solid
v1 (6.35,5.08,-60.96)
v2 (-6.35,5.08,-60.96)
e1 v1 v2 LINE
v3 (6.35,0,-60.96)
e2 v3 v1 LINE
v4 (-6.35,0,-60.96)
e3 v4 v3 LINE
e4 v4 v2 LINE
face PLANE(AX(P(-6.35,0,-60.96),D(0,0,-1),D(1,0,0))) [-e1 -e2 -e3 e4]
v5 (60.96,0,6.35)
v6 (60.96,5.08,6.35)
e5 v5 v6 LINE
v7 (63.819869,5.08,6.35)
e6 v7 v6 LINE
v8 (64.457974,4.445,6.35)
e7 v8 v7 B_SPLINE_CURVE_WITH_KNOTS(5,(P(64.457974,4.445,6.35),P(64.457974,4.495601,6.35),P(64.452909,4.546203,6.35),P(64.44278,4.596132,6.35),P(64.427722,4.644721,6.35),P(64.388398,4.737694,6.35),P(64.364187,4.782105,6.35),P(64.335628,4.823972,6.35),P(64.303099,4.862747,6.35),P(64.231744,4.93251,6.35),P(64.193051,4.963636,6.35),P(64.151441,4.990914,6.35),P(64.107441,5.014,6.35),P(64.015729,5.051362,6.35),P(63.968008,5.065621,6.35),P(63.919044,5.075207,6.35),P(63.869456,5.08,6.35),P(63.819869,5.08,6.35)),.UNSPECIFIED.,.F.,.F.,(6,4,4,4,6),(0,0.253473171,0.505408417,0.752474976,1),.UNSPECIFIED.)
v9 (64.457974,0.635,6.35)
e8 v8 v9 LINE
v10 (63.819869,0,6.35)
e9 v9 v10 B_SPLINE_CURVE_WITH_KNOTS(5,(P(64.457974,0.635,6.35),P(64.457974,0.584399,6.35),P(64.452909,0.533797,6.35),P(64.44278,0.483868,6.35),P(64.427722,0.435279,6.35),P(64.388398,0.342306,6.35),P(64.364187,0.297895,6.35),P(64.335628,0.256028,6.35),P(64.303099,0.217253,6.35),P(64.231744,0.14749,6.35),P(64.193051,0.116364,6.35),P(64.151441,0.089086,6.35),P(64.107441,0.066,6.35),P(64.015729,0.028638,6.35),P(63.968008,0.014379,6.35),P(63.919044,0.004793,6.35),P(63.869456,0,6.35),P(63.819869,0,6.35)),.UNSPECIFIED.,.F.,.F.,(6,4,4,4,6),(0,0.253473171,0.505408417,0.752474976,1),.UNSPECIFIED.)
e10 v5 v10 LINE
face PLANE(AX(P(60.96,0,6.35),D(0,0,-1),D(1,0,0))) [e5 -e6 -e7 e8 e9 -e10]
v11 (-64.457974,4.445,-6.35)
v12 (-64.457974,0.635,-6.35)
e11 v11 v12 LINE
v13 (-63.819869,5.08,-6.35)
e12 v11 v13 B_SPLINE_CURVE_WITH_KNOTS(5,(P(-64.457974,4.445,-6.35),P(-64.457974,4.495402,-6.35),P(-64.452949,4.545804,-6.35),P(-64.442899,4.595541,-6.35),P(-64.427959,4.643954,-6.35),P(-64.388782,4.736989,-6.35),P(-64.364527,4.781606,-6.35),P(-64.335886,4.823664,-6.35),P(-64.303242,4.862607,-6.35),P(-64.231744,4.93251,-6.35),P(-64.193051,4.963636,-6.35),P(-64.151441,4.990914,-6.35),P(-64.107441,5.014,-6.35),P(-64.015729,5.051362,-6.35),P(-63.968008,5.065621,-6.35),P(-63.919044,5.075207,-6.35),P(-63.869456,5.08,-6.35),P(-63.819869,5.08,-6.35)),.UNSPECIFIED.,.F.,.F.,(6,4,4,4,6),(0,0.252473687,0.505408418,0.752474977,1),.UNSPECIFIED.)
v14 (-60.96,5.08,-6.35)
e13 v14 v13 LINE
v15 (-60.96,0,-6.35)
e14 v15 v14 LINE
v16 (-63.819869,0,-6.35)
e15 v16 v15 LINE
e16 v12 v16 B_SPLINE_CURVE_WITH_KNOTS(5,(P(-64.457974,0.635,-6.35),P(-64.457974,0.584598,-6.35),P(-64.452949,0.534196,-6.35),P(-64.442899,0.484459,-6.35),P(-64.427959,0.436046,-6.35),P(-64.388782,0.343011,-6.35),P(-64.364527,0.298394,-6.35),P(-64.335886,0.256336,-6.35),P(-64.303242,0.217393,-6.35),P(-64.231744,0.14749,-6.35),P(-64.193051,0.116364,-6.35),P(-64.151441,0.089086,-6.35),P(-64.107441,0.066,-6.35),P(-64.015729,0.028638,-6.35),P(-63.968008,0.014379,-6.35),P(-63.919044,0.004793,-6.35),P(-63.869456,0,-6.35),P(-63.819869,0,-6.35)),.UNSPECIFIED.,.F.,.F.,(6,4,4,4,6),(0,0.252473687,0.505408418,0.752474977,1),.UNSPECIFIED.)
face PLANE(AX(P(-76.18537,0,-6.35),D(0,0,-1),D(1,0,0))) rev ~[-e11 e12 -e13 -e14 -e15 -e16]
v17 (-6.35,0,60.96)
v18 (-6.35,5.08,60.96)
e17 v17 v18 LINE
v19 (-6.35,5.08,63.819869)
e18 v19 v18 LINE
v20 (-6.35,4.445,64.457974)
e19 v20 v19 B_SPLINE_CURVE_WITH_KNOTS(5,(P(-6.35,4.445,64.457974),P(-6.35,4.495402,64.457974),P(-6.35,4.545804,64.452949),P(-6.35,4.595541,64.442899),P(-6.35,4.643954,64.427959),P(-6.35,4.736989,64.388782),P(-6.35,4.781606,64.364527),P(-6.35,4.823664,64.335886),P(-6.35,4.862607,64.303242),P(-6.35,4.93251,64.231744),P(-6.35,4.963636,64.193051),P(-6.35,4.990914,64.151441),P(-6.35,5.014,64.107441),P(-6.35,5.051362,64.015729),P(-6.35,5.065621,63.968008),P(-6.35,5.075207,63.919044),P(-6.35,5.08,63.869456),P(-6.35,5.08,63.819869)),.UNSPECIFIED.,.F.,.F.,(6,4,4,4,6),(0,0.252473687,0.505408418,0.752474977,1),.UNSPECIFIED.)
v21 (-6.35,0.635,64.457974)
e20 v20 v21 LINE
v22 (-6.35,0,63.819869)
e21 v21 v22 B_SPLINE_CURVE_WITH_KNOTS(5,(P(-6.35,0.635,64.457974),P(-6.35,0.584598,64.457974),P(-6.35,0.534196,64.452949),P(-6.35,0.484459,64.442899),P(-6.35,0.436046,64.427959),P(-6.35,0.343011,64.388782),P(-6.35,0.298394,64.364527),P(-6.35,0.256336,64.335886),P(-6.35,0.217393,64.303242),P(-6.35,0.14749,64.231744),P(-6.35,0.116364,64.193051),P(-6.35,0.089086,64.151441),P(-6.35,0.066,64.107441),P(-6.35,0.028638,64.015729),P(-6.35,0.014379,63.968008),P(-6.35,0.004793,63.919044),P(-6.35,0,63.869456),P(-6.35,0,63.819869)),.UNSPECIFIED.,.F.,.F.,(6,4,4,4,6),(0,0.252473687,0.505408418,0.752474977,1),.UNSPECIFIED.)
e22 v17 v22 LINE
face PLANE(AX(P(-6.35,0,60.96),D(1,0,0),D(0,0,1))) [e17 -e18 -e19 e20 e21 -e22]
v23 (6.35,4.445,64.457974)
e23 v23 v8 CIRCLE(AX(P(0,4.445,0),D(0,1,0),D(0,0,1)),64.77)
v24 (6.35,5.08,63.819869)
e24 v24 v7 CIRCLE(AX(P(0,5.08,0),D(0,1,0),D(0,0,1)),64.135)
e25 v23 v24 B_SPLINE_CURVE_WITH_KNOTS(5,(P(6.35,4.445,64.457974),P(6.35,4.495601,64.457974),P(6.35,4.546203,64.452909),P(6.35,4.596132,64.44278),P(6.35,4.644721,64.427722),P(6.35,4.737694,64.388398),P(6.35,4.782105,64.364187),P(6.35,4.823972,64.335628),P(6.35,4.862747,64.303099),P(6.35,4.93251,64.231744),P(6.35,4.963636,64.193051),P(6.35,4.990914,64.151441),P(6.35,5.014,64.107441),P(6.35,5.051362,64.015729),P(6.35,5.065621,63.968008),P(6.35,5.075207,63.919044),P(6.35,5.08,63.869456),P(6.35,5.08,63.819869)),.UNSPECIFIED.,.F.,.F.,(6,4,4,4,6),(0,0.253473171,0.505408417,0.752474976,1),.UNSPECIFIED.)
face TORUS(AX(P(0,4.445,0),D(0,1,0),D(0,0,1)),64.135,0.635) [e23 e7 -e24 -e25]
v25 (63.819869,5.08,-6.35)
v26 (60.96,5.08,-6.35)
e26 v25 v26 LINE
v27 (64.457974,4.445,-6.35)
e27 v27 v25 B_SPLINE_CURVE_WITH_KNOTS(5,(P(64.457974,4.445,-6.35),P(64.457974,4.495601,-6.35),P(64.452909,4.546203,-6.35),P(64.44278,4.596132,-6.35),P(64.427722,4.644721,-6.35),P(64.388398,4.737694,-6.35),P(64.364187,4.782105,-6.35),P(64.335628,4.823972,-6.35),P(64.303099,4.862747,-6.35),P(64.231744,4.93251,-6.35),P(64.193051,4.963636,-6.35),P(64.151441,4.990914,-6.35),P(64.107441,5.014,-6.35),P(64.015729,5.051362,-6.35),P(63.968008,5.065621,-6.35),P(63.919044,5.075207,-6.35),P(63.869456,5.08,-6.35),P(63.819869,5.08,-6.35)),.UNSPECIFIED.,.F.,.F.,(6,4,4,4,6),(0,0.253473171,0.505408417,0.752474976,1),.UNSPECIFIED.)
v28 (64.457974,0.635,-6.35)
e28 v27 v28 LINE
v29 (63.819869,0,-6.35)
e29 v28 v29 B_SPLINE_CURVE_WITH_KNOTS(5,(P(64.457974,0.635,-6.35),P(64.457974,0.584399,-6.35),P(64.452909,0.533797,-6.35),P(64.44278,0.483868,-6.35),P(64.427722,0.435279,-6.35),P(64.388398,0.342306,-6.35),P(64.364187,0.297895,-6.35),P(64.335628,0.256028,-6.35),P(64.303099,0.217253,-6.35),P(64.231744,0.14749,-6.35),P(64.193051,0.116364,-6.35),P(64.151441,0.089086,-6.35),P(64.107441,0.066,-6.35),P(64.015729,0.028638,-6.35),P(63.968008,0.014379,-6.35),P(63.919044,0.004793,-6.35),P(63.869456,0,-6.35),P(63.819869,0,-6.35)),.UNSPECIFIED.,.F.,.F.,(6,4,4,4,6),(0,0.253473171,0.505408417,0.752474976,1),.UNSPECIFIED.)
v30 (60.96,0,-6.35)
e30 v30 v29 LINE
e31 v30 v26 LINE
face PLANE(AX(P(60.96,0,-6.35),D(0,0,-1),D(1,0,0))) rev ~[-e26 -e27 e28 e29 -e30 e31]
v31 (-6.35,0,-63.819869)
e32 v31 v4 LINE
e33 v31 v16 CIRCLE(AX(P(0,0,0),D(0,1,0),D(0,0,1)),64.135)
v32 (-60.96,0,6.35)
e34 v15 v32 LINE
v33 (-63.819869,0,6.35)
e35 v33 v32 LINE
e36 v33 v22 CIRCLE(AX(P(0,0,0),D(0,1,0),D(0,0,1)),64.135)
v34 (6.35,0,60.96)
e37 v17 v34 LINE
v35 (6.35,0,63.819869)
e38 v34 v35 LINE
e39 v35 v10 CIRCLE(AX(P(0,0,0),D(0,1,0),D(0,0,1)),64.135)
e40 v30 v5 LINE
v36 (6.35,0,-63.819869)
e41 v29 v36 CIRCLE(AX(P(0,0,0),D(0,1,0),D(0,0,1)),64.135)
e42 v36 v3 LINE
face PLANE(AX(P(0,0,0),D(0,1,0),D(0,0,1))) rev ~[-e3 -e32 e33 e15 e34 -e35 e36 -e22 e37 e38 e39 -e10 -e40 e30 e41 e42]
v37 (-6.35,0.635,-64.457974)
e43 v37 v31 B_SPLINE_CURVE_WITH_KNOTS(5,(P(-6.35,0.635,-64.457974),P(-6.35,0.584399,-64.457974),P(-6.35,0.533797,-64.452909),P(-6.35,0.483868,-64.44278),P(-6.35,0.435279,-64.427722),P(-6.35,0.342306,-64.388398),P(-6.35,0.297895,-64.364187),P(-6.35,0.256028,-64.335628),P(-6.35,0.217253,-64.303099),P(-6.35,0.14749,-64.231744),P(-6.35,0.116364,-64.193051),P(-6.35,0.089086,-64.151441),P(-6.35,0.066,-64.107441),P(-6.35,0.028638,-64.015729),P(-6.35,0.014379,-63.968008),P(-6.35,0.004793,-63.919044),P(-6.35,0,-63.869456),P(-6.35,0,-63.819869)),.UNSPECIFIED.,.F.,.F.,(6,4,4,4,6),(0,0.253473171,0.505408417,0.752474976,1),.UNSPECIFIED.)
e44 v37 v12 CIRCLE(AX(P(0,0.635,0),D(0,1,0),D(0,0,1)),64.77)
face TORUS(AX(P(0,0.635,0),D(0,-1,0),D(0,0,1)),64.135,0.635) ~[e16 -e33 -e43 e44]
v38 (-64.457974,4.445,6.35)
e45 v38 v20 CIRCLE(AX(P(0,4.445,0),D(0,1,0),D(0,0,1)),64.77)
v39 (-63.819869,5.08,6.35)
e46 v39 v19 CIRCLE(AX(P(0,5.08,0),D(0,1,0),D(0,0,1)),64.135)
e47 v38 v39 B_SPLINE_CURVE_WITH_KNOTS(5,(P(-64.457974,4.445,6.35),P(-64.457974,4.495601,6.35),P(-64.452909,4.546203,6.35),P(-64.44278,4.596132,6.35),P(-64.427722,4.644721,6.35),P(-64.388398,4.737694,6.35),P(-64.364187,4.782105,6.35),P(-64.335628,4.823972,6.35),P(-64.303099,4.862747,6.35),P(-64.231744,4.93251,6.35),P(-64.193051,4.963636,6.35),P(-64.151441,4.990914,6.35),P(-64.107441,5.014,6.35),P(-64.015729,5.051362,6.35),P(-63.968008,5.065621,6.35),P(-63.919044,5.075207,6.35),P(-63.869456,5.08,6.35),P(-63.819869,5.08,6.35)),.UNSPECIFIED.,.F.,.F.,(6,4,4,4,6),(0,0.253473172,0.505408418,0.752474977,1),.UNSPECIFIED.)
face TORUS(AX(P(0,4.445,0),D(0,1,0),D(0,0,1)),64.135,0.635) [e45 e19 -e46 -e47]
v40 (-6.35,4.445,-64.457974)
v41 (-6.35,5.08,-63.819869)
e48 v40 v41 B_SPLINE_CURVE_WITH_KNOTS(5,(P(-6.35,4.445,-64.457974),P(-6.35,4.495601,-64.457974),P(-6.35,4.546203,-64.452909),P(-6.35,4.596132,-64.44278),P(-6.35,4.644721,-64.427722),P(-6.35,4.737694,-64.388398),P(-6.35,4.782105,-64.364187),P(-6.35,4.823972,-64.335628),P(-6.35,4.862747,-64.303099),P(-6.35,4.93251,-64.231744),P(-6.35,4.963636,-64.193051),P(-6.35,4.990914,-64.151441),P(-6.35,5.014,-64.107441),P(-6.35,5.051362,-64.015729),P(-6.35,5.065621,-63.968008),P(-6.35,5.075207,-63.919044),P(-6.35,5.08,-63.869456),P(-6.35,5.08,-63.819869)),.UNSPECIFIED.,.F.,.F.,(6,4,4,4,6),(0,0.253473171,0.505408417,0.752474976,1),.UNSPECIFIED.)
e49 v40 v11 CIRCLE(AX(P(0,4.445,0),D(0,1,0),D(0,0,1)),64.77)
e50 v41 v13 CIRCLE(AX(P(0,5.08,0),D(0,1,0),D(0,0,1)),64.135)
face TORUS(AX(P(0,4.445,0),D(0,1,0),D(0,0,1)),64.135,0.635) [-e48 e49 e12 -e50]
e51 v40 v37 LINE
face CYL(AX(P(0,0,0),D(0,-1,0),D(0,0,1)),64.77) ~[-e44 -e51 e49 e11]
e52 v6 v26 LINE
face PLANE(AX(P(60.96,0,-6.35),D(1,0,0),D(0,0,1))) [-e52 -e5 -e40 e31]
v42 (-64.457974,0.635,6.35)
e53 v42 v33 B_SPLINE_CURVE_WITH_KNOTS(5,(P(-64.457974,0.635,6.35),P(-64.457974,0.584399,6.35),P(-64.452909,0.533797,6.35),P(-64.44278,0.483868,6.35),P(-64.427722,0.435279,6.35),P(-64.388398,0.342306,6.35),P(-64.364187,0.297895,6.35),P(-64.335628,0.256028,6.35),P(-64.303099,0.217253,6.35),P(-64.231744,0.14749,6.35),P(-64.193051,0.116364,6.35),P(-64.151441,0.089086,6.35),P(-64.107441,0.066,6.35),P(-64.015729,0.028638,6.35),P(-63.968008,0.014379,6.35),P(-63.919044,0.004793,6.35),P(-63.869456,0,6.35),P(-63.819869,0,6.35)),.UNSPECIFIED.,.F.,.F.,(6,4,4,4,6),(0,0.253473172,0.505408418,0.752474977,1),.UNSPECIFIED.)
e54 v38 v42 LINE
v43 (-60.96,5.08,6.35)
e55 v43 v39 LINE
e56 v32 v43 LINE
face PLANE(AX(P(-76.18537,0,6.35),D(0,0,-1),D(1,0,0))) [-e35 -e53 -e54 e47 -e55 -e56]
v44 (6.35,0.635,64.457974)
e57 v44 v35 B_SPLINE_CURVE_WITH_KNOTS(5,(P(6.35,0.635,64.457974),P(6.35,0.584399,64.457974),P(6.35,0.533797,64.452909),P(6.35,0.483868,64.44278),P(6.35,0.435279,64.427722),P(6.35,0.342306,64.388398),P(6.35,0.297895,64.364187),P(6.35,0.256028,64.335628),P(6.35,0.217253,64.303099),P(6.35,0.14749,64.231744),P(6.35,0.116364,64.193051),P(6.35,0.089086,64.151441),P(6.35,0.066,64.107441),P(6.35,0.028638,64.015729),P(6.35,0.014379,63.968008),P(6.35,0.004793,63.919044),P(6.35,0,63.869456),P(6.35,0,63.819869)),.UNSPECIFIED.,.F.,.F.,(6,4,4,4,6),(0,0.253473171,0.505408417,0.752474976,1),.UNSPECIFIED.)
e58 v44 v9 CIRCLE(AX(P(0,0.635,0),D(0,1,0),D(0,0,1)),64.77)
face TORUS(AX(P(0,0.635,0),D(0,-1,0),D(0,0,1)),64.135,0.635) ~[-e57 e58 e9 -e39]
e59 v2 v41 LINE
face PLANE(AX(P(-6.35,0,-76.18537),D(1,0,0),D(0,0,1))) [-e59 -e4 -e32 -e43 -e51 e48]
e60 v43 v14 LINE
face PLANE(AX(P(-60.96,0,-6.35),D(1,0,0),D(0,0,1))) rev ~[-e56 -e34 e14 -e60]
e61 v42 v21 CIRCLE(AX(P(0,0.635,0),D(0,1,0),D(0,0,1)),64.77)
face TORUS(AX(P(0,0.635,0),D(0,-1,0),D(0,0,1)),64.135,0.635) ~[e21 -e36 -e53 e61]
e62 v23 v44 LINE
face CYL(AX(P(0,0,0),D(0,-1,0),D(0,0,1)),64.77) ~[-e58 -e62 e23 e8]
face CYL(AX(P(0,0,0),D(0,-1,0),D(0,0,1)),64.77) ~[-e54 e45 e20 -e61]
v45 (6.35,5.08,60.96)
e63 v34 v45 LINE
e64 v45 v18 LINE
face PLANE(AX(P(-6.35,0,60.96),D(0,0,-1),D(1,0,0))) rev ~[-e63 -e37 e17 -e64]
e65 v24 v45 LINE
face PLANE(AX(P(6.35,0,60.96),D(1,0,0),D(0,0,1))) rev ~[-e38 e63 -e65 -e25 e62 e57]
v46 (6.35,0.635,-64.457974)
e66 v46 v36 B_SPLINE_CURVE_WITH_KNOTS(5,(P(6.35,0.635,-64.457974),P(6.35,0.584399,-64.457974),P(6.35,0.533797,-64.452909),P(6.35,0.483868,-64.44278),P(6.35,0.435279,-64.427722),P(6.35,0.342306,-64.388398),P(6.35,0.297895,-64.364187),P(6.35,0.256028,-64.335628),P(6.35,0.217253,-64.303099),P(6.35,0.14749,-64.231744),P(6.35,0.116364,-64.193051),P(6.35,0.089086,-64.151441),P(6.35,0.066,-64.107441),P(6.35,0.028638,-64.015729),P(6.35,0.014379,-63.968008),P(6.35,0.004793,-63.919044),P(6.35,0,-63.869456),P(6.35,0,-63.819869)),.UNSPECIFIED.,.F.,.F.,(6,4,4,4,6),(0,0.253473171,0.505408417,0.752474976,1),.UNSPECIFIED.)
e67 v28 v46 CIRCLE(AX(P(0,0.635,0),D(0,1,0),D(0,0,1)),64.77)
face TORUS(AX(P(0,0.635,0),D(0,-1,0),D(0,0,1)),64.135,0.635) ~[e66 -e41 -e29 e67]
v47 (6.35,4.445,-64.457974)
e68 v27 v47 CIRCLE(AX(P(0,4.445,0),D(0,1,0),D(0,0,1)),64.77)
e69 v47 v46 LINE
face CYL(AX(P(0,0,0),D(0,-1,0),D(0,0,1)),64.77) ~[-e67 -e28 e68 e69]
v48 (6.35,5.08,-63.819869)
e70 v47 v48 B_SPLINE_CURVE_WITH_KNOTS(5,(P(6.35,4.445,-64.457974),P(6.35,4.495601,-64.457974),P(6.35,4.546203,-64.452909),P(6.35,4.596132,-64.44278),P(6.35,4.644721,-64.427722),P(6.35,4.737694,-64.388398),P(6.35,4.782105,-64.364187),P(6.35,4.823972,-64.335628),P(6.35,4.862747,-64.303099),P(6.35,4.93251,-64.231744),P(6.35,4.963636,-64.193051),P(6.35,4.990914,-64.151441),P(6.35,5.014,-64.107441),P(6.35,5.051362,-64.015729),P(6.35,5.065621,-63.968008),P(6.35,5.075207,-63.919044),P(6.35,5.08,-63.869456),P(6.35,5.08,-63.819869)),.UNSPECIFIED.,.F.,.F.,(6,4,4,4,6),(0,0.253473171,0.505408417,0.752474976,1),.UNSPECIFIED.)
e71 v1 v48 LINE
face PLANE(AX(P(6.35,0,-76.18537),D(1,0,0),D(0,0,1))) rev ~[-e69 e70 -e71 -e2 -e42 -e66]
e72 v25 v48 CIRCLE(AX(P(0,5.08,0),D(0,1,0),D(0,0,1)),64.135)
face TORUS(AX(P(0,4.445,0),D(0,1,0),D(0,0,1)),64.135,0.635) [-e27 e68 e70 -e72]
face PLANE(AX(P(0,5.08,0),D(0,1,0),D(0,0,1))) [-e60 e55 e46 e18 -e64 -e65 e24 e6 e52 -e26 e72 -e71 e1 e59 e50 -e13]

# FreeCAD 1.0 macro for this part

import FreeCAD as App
import Part
import Sketcher
Q = App.Units.Quantity


def edges_at(feature, points):
    """Names of the edges that pass closest to the given points."""
    edges = feature.Shape.Edges
    near = lambda p: min(range(len(edges)), key=lambda i: edges[i].distToShape(Part.Vertex(*p))[0])
    return sorted({f"Edge{near(p) + 1}" for p in points})

doc = App.newDocument("Part")
body = doc.addObject("PartDesign::Body", "Body")

# Sketch on XZ plane
sketch1 = body.newObject("Sketcher::SketchObject", "Sketch")
sketch1.AttachmentSupport = (doc.getObject("XZ_Plane"), [""])
sketch1.MapMode = "FlatFace"
sketch1.addGeometry(Part.Circle(App.Vector(0, 0, 0), App.Vector(0, 0, 1), 64.77), False)
sketch1.addConstraint(Sketcher.Constraint("Coincident", 0, 3, -1, 1))
sketch1.addConstraint(Sketcher.Constraint("Diameter", 0, Q("5.1 in")))
pad1 = body.newObject("PartDesign::Pad", "Pad")
pad1.Profile = sketch1
pad1.Length = Q("0.2 in")
pad1.Reversed = True
doc.recompute()

fillet = body.newObject("PartDesign::Fillet", "Fillet")
fillet.Base = (pad1, edges_at(pad1, [(0, 0, -64.77), (0, 5.08, -64.77)]))
fillet.Radius = Q("0.025 in")

# Sketch on XZ plane
sketch2 = body.newObject("Sketcher::SketchObject", "Sketch001")
sketch2.AttachmentSupport = (doc.getObject("XZ_Plane"), [""])
sketch2.MapMode = "FlatFace"
sketch2.addGeometry(Part.LineSegment(App.Vector(-6.35, 76.18537, 0), App.Vector(-6.35, 60.96, 0)), False)
sketch2.addGeometry(Part.LineSegment(App.Vector(-6.35, 60.96, 0), App.Vector(6.35, 60.96, 0)), False)
sketch2.addGeometry(Part.LineSegment(App.Vector(6.35, 60.96, 0), App.Vector(6.35, 76.18537, 0)), False)
sketch2.addGeometry(Part.LineSegment(App.Vector(6.35, 76.18537, 0), App.Vector(-6.35, 76.18537, 0)), False)
sketch2.addGeometry(Part.LineSegment(App.Vector(60.96, 6.35, 0), App.Vector(60.96, -6.35, 0)), False)
sketch2.addGeometry(Part.LineSegment(App.Vector(60.96, -6.35, 0), App.Vector(76.18537, -6.35, 0)), False)
sketch2.addGeometry(Part.LineSegment(App.Vector(76.18537, -6.35, 0), App.Vector(76.18537, 6.35, 0)), False)
sketch2.addGeometry(Part.LineSegment(App.Vector(76.18537, 6.35, 0), App.Vector(60.96, 6.35, 0)), False)
sketch2.addGeometry(Part.LineSegment(App.Vector(-6.35, -60.96, 0), App.Vector(-6.35, -76.18537, 0)), False)
sketch2.addGeometry(Part.LineSegment(App.Vector(-6.35, -76.18537, 0), App.Vector(6.35, -76.18537, 0)), False)
sketch2.addGeometry(Part.LineSegment(App.Vector(6.35, -76.18537, 0), App.Vector(6.35, -60.96, 0)), False)
sketch2.addGeometry(Part.LineSegment(App.Vector(6.35, -60.96, 0), App.Vector(-6.35, -60.96, 0)), False)
sketch2.addGeometry(Part.LineSegment(App.Vector(-76.18537, 6.35, 0), App.Vector(-76.18537, -6.35, 0)), False)
sketch2.addGeometry(Part.LineSegment(App.Vector(-76.18537, -6.35, 0), App.Vector(-60.96, -6.35, 0)), False)
sketch2.addGeometry(Part.LineSegment(App.Vector(-60.96, -6.35, 0), App.Vector(-60.96, 6.35, 0)), False)
sketch2.addGeometry(Part.LineSegment(App.Vector(-60.96, 6.35, 0), App.Vector(-76.18537, 6.35, 0)), False)
sketch2.addConstraint(Sketcher.Constraint("Coincident", 0, 2, 1, 1))
sketch2.addConstraint(Sketcher.Constraint("Coincident", 1, 2, 2, 1))
sketch2.addConstraint(Sketcher.Constraint("Coincident", 2, 2, 3, 1))
sketch2.addConstraint(Sketcher.Constraint("Coincident", 3, 2, 0, 1))
sketch2.addConstraint(Sketcher.Constraint("Coincident", 4, 2, 5, 1))
sketch2.addConstraint(Sketcher.Constraint("Coincident", 5, 2, 6, 1))
sketch2.addConstraint(Sketcher.Constraint("Coincident", 6, 2, 7, 1))
sketch2.addConstraint(Sketcher.Constraint("Coincident", 7, 2, 4, 1))
sketch2.addConstraint(Sketcher.Constraint("Coincident", 8, 2, 9, 1))
sketch2.addConstraint(Sketcher.Constraint("Coincident", 9, 2, 10, 1))
sketch2.addConstraint(Sketcher.Constraint("Coincident", 10, 2, 11, 1))
sketch2.addConstraint(Sketcher.Constraint("Coincident", 11, 2, 8, 1))
sketch2.addConstraint(Sketcher.Constraint("Coincident", 12, 2, 13, 1))
sketch2.addConstraint(Sketcher.Constraint("Coincident", 13, 2, 14, 1))
sketch2.addConstraint(Sketcher.Constraint("Coincident", 14, 2, 15, 1))
sketch2.addConstraint(Sketcher.Constraint("Coincident", 15, 2, 12, 1))
sketch2.addConstraint(Sketcher.Constraint("Vertical", 0))
sketch2.addConstraint(Sketcher.Constraint("Horizontal", 1))
sketch2.addConstraint(Sketcher.Constraint("Vertical", 2))
sketch2.addConstraint(Sketcher.Constraint("Horizontal", 3))
sketch2.addConstraint(Sketcher.Constraint("Vertical", 4))
sketch2.addConstraint(Sketcher.Constraint("Horizontal", 5))
sketch2.addConstraint(Sketcher.Constraint("Vertical", 6))
sketch2.addConstraint(Sketcher.Constraint("Horizontal", 7))
sketch2.addConstraint(Sketcher.Constraint("Vertical", 8))
sketch2.addConstraint(Sketcher.Constraint("Horizontal", 9))
sketch2.addConstraint(Sketcher.Constraint("Vertical", 10))
sketch2.addConstraint(Sketcher.Constraint("Horizontal", 11))
sketch2.addConstraint(Sketcher.Constraint("Vertical", 12))
sketch2.addConstraint(Sketcher.Constraint("Horizontal", 13))
sketch2.addConstraint(Sketcher.Constraint("Vertical", 14))
sketch2.addConstraint(Sketcher.Constraint("Horizontal", 15))
sketch2.addConstraint(Sketcher.Constraint("Symmetric", 2, 2, 8, 2, -1, 1))
sketch2.addConstraint(Sketcher.Constraint("Symmetric", 0, 2, 10, 2, -1, 1))
sketch2.addConstraint(Sketcher.Constraint("Symmetric", 6, 2, 12, 2, -1, 1))
sketch2.addConstraint(Sketcher.Constraint("Symmetric", 4, 2, 14, 2, -1, 1))
sketch2.addConstraint(Sketcher.Constraint("Horizontal", 5, 2, 12, 2))
sketch2.addConstraint(Sketcher.Constraint("Vertical", 3, 2, 8, 2))
sketch2.addConstraint(Sketcher.Constraint("Equal", 15, 0))
sketch2.addConstraint(Sketcher.Constraint("Equal", 11, 4))
sketch2.addConstraint(Sketcher.Constraint("DistanceX", 1, 1, 1, 2, Q("0.5 in")))
sketch2.addConstraint(Sketcher.Constraint("DistanceY", -1, 1, 0, 2, Q("2.4 in")))
sketch2.addConstraint(Sketcher.Constraint("DistanceX", -1, 1, 4, 2, Q("2.4 in")))
sketch2.addConstraint(Sketcher.Constraint("DistanceX", 5, 1, 5, 2, Q("15.22537 mm")))
pocket1 = body.newObject("PartDesign::Pocket", "Pocket")
pocket1.Profile = sketch2
pocket1.Type = "ThroughAll"

doc.recompute()
